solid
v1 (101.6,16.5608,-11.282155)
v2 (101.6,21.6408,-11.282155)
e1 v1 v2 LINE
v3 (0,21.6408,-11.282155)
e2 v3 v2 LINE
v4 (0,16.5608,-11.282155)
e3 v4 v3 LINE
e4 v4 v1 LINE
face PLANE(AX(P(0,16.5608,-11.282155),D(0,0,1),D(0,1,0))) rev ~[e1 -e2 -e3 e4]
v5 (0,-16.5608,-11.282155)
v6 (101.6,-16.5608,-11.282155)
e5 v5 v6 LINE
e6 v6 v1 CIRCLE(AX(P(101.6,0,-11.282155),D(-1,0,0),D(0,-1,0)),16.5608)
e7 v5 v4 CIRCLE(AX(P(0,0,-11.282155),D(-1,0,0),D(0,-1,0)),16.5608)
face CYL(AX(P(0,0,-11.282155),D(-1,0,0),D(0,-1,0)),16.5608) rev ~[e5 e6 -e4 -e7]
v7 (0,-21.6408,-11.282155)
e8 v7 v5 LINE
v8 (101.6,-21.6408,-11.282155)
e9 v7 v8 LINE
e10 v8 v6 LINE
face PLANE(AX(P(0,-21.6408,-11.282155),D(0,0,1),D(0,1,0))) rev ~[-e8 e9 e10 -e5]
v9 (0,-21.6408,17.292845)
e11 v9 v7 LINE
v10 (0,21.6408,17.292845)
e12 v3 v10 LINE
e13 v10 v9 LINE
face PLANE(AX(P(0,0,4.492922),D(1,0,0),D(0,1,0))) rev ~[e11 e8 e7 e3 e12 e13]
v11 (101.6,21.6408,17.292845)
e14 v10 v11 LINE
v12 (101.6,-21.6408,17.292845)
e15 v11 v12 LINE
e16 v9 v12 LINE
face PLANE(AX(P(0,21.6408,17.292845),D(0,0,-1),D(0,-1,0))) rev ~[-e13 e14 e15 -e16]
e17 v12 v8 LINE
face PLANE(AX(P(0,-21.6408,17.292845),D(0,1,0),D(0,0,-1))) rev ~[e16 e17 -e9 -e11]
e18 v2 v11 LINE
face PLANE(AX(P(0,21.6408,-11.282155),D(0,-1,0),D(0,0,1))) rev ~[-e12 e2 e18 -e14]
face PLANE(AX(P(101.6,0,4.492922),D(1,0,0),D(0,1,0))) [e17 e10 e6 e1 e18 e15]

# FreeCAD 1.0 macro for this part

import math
import FreeCAD as App
import Part
import Sketcher

V = App.Vector
Q = App.Units.Quantity

doc = App.newDocument("Part")
body = doc.addObject("PartDesign::Body", "Body")

# Sketch on YZ plane
sketch1 = body.newObject("Sketcher::SketchObject", "Sketch")
sketch1.AttachmentSupport = (doc.getObject("YZ_Plane"), [""])
sketch1.MapMode = "FlatFace"
sketch1.addGeometry(Part.ArcOfCircle(Part.Circle(V(0, -11, 0), V(0, 0, 1), 17), math.radians(0), math.radians(180)), False)
sketch1.addGeometry(Part.LineSegment(V(17, -11, 0), V(22, -11, 0)), False)
sketch1.addGeometry(Part.LineSegment(V(22, -11, 0), V(22, 17, 0)), False)
sketch1.addGeometry(Part.LineSegment(V(22, 17, 0), V(-22, 17, 0)), False)
sketch1.addGeometry(Part.LineSegment(V(-22, 17, 0), V(-22, -11, 0)), False)
sketch1.addGeometry(Part.LineSegment(V(-22, -11, 0), V(-17, -11, 0)), False)
sketch1.addConstraint(Sketcher.Constraint("Coincident", 0, 1, 1, 1))
sketch1.addConstraint(Sketcher.Constraint("Coincident", 1, 2, 2, 1))
sketch1.addConstraint(Sketcher.Constraint("Coincident", 2, 2, 3, 1))
sketch1.addConstraint(Sketcher.Constraint("Coincident", 3, 2, 4, 1))
sketch1.addConstraint(Sketcher.Constraint("Coincident", 4, 2, 5, 1))
sketch1.addConstraint(Sketcher.Constraint("Coincident", 5, 2, 0, 2))
sketch1.addConstraint(Sketcher.Constraint("Horizontal", 1))
sketch1.addConstraint(Sketcher.Constraint("Vertical", 2))
sketch1.addConstraint(Sketcher.Constraint("Horizontal", 3))
sketch1.addConstraint(Sketcher.Constraint("Vertical", 4))
sketch1.addConstraint(Sketcher.Constraint("Horizontal", 5))
sketch1.addConstraint(Sketcher.Constraint("Symmetric", 1, 2, 4, 2, -2))
sketch1.addConstraint(Sketcher.Constraint("PointOnObject", 0, 3, -2))
sketch1.addConstraint(Sketcher.Constraint("DistanceX", 1, 1, 1, 2, Q("0.2 in")))
sketch1.addConstraint(Sketcher.Constraint("Radius", 0, Q("0.652 in")))
sketch1.addConstraint(Sketcher.Constraint("DistanceY", 2, 1, 2, 2, Q("1.125 in")))
sketch1.addConstraint(Sketcher.Constraint("DistanceY", 0, 3, 2, 2, Q("1.125 in")))
sketch1.addConstraint(Sketcher.Constraint("DistanceY", 0, 3, -1, 1, Q("11.282155 mm")))
pad1 = body.newObject("PartDesign::Pad", "Pad")
pad1.Profile = sketch1
pad1.Length = Q("4 in")

doc.recompute()
